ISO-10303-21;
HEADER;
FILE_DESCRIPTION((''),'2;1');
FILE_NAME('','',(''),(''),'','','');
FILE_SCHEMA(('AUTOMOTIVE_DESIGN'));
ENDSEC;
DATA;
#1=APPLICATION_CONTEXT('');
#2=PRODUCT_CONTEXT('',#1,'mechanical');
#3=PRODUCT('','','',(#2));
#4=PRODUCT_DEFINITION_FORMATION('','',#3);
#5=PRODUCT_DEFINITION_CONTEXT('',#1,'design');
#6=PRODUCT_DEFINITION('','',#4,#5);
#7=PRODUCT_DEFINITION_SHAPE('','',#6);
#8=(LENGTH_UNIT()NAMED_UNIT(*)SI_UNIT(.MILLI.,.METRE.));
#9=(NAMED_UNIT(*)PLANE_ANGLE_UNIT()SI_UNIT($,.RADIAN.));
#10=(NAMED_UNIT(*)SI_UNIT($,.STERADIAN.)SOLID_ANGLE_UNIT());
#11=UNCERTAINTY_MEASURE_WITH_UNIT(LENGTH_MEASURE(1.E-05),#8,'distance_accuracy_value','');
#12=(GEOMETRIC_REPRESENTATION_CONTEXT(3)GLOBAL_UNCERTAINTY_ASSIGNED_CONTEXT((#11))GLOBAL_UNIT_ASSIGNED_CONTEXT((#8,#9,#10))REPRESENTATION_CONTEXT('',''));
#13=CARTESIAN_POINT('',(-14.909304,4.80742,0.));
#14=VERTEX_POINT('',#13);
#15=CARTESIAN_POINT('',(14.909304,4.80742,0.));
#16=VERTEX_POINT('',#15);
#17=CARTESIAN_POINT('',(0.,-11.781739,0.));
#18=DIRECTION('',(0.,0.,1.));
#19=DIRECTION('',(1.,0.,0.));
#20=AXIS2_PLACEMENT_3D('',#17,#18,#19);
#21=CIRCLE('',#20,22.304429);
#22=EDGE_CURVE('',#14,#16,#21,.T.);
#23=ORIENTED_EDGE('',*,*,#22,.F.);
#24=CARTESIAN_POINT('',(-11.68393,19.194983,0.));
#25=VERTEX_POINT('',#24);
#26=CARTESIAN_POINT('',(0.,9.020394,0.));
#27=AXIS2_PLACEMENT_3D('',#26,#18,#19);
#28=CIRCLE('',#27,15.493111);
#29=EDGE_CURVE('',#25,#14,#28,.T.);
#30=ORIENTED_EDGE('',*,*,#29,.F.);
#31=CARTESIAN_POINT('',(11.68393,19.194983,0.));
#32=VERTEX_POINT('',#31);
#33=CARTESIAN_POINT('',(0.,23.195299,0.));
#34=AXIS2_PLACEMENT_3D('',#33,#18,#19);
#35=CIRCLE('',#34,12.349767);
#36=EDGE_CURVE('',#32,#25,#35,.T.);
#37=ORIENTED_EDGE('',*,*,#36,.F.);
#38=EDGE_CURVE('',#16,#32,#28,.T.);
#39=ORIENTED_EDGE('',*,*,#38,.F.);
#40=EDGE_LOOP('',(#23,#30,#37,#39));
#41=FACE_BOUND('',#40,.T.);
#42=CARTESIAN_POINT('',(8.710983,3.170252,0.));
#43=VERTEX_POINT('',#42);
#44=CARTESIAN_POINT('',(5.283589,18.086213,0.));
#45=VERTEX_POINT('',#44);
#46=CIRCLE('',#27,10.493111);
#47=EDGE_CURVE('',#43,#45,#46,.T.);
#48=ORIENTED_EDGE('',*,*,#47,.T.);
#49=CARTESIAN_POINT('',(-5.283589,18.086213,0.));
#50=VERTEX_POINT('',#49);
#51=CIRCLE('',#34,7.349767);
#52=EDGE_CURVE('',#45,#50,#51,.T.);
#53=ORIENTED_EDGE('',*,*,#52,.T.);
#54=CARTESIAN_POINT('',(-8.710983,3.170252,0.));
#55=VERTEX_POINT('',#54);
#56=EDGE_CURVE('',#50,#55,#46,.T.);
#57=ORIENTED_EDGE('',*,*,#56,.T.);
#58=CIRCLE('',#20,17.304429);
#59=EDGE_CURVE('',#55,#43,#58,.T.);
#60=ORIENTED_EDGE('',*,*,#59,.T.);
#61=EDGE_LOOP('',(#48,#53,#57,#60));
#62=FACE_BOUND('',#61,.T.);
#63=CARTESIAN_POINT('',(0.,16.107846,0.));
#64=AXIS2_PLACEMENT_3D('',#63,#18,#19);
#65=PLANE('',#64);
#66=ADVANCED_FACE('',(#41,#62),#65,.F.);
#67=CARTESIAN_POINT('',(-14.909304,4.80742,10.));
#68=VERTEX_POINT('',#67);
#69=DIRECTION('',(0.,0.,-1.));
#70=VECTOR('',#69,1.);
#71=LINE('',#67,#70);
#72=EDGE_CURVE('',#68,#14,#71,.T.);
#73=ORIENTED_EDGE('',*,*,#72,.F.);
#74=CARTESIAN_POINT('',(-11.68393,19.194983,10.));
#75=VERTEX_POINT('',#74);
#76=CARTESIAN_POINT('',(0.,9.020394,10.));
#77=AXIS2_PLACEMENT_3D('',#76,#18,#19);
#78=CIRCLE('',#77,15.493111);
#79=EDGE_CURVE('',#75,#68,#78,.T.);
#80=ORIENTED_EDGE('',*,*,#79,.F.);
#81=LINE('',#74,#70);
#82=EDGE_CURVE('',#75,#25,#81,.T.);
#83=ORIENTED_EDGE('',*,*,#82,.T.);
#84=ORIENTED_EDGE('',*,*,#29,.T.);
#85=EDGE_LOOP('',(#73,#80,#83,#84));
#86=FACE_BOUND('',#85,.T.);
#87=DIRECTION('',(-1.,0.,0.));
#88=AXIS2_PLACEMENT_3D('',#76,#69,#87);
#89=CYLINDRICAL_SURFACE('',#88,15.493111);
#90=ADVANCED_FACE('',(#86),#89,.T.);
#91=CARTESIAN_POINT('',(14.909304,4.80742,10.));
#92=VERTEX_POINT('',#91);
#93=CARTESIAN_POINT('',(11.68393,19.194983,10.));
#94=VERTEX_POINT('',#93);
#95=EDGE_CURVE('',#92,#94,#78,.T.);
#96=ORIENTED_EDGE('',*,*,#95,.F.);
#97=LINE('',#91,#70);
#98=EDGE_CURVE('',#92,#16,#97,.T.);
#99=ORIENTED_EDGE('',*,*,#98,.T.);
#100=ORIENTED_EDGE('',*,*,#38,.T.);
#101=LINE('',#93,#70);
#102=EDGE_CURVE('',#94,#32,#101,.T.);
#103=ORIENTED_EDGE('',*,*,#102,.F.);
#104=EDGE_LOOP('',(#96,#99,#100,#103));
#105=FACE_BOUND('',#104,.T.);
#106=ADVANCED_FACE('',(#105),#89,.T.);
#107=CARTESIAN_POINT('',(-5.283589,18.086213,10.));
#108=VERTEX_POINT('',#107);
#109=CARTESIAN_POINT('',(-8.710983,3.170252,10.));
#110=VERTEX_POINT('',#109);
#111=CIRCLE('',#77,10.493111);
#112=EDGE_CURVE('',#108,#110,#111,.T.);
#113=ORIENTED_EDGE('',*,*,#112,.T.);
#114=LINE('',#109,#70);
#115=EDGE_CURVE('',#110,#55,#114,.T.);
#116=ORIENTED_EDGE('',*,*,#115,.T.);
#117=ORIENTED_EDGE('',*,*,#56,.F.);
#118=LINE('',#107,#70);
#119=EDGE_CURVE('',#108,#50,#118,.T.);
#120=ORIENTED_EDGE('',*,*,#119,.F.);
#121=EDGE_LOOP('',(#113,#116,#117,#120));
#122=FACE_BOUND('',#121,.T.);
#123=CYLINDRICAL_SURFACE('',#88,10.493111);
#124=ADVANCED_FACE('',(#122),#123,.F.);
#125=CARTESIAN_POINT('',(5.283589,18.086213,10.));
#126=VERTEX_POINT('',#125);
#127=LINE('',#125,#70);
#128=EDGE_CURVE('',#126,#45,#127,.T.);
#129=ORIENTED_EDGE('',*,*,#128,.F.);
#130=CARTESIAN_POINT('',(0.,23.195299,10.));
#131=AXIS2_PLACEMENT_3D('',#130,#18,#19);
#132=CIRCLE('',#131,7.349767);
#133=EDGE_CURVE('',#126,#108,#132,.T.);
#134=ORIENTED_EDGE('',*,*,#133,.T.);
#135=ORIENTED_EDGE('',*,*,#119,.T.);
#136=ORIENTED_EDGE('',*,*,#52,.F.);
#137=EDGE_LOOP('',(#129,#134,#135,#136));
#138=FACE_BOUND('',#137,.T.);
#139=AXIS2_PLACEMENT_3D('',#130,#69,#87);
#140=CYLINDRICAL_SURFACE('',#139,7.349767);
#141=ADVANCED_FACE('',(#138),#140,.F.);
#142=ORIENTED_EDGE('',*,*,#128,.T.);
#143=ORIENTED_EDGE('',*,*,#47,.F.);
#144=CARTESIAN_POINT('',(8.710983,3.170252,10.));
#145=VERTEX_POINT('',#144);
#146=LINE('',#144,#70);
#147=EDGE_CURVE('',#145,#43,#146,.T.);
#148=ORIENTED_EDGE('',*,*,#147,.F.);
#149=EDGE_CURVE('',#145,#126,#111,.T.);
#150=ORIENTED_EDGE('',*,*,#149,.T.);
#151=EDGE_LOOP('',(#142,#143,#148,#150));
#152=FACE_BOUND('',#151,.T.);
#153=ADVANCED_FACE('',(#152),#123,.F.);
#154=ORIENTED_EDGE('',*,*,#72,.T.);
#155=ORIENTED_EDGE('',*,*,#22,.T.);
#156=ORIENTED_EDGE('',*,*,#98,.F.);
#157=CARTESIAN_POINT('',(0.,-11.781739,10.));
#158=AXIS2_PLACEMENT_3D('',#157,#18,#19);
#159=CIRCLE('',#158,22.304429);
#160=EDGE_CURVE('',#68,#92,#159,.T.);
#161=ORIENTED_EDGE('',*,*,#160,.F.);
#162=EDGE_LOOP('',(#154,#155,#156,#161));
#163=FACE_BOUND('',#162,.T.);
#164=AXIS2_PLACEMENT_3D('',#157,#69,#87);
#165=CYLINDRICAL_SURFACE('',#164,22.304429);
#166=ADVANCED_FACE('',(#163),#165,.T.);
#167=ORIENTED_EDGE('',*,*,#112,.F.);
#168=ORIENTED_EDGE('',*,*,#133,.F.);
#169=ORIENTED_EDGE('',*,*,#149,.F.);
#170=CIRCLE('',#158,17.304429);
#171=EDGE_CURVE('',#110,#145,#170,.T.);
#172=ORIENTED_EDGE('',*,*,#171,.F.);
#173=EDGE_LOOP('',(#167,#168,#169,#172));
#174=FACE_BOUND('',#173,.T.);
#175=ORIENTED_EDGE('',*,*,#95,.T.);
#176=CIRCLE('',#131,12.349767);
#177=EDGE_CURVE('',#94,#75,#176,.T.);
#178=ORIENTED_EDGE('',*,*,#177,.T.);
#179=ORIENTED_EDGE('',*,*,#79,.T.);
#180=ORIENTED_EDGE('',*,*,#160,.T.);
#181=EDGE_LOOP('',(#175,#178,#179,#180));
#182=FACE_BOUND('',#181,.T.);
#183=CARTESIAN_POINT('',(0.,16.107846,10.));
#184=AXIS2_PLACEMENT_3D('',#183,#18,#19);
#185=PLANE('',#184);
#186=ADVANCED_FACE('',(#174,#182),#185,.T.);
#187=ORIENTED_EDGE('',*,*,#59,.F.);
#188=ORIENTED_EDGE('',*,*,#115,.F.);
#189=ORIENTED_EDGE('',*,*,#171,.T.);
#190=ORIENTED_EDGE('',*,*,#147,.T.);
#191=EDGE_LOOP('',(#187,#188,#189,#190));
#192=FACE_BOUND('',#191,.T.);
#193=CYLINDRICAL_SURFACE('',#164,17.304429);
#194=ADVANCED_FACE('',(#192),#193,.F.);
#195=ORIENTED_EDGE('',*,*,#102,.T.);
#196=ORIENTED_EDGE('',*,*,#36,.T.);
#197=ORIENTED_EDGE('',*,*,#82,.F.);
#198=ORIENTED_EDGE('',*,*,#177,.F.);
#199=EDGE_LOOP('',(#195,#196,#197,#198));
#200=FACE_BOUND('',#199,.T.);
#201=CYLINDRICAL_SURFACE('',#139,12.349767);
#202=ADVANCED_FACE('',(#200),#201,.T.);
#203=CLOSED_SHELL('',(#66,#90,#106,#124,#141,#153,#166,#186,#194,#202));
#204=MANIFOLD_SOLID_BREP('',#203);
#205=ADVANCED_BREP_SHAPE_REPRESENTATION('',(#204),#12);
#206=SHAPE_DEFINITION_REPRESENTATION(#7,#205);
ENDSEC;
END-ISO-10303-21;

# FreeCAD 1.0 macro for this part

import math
import FreeCAD as App
import Part
import Sketcher

V = App.Vector

doc = App.newDocument("Part")
body = doc.addObject("PartDesign::Body", "Body")

# Sketch on XY plane
sketch1 = doc.addObject("Sketcher::SketchObject", "Sketch")
body.addObject(sketch1)
sketch1.AttachmentSupport = (doc.XY_Plane, [""])
sketch1.MapMode = "FlatFace"
sketch1.addGeometry(Part.ArcOfCircle(Part.Circle(V(0, 23, 0), V(0, 0, 1), 12), math.radians(-19), math.radians(199)), False)
sketch1.addGeometry(Part.ArcOfCircle(Part.Circle(V(0, 9, 0), V(0, 0, 1), 15), math.radians(139), math.radians(196)), False)
sketch1.addGeometry(Part.ArcOfCircle(Part.Circle(V(0, -12, 0), V(0, 0, 1), 22), math.radians(132), math.radians(408)), False)
sketch1.addGeometry(Part.ArcOfCircle(Part.Circle(V(0, 9, 0), V(0, 0, 1), 15), math.radians(-16), math.radians(41)), False)
sketch1.addGeometry(Part.ArcOfCircle(Part.Circle(V(0, 23, 0), V(0, 0, 1), 7), math.radians(-44), math.radians(224)), False)
sketch1.addGeometry(Part.ArcOfCircle(Part.Circle(V(0, 9, 0), V(0, 0, 1), 10), math.radians(-34), math.radians(60)), False)
sketch1.addGeometry(Part.ArcOfCircle(Part.Circle(V(0, -12, 0), V(0, 0, 1), 17), math.radians(120), math.radians(420)), False)
sketch1.addGeometry(Part.ArcOfCircle(Part.Circle(V(0, 9, 0), V(0, 0, 1), 10), math.radians(120), math.radians(214)), False)
sketch1.addConstraint(Sketcher.Constraint("Coincident", 0, 2, 1, 1))
sketch1.addConstraint(Sketcher.Constraint("Coincident", 1, 2, 2, 1))
sketch1.addConstraint(Sketcher.Constraint("Coincident", 2, 2, 3, 1))
sketch1.addConstraint(Sketcher.Constraint("Coincident", 3, 2, 0, 1))
sketch1.addConstraint(Sketcher.Constraint("Coincident", 4, 1, 5, 2))
sketch1.addConstraint(Sketcher.Constraint("Coincident", 5, 1, 6, 2))
sketch1.addConstraint(Sketcher.Constraint("Coincident", 6, 1, 7, 2))
sketch1.addConstraint(Sketcher.Constraint("Coincident", 7, 1, 4, 2))
sketch1.addConstraint(Sketcher.Constraint("Coincident", 3, 3, 1, 3))
sketch1.addConstraint(Sketcher.Constraint("Coincident", 4, 3, 0, 3))
sketch1.addConstraint(Sketcher.Constraint("Coincident", 5, 3, 1, 3))
sketch1.addConstraint(Sketcher.Constraint("Coincident", 6, 3, 2, 3))
sketch1.addConstraint(Sketcher.Constraint("Coincident", 7, 3, 1, 3))
sketch1.addConstraint(Sketcher.Constraint("Equal", 1, 3))
sketch1.addConstraint(Sketcher.Constraint("Equal", 5, 7))
sketch1.addConstraint(Sketcher.Constraint("Symmetric", 1, 2, 2, 2, -2))
sketch1.addConstraint(Sketcher.Constraint("PointOnObject", 0, 3, -2))
sketch1.addConstraint(Sketcher.Constraint("Radius", 1, 15.493111))
sketch1.addConstraint(Sketcher.Constraint("Radius", 2, 22.304429))
sketch1.addConstraint(Sketcher.Constraint("Radius", 5, 10.493111))
sketch1.addConstraint(Sketcher.Constraint("Radius", 6, 17.304429))
sketch1.addConstraint(Sketcher.Constraint("Radius", 0, 12.349767))
sketch1.addConstraint(Sketcher.Constraint("Radius", 4, 7.349767))
sketch1.addConstraint(Sketcher.Constraint("DistanceY", -1, 1, 0, 3, 23.195299))
sketch1.addConstraint(Sketcher.Constraint("DistanceY", 2, 3, -1, 1, 11.781739))
sketch1.addConstraint(Sketcher.Constraint("DistanceX", 0, 2, -1, 1, 11.68393))
pad1 = doc.addObject("PartDesign::Pad", "Pad")
body.addObject(pad1)
pad1.Profile = sketch1
pad1.Length = 10

doc.recompute()
